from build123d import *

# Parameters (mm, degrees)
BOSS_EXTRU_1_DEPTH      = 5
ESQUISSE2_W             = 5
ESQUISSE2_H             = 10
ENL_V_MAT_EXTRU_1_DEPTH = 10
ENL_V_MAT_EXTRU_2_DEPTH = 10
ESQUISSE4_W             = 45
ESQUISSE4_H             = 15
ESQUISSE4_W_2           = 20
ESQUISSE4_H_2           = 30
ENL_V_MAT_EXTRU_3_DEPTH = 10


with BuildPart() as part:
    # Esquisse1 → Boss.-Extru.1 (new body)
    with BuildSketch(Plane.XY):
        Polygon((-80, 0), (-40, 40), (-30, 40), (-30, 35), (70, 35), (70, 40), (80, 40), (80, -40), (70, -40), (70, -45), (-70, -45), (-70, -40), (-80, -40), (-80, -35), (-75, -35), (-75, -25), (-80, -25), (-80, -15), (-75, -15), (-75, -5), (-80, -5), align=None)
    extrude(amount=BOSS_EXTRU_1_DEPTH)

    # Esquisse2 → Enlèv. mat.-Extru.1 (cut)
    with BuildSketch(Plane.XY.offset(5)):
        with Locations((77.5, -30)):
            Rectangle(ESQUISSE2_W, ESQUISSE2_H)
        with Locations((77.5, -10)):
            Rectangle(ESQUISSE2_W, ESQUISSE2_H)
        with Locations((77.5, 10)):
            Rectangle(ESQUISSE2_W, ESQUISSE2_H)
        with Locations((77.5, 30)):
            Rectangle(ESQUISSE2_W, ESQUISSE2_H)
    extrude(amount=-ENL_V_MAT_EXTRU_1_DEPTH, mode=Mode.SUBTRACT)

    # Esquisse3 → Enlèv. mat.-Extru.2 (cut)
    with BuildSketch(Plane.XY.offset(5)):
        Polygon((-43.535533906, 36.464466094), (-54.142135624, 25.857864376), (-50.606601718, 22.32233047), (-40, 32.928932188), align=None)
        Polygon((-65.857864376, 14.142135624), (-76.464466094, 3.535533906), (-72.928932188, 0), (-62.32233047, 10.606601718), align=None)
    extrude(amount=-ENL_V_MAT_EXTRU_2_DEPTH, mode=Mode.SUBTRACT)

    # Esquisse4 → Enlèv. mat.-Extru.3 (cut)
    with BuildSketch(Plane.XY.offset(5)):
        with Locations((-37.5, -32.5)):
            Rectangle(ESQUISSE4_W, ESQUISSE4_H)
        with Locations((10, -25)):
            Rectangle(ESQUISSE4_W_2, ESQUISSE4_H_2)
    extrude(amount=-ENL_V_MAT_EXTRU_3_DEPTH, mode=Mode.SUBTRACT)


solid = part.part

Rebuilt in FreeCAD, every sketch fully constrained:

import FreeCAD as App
import Part
import Sketcher
Q = App.Units.Quantity

doc = App.newDocument("Part")
body = doc.addObject("PartDesign::Body", "Body")

sketch1 = body.newObject("Sketcher::SketchObject", "Sketch")
sketch1.AttachmentSupport = (doc.getObject("XY_Plane"), [""])
sketch1.MapMode = "FlatFace"
sketch1.addGeometry(Part.LineSegment(App.Vector(-40, 40, 0), App.Vector(-80, 0, 0)), False)
sketch1.addGeometry(Part.LineSegment(App.Vector(-80, 0, 0), App.Vector(-80, -5, 0)), False)
sketch1.addGeometry(Part.LineSegment(App.Vector(-80, -5, 0), App.Vector(-75, -5, 0)), False)
sketch1.addGeometry(Part.LineSegment(App.Vector(-75, -5, 0), App.Vector(-75, -15, 0)), False)
sketch1.addGeometry(Part.LineSegment(App.Vector(-75, -15, 0), App.Vector(-80, -15, 0)), False)
sketch1.addGeometry(Part.LineSegment(App.Vector(-80, -15, 0), App.Vector(-80, -25, 0)), False)
sketch1.addGeometry(Part.LineSegment(App.Vector(-80, -25, 0), App.Vector(-75, -25, 0)), False)
sketch1.addGeometry(Part.LineSegment(App.Vector(-75, -25, 0), App.Vector(-75, -35, 0)), False)
sketch1.addGeometry(Part.LineSegment(App.Vector(-75, -35, 0), App.Vector(-80, -35, 0)), False)
sketch1.addGeometry(Part.LineSegment(App.Vector(-80, -35, 0), App.Vector(-80, -40, 0)), False)
sketch1.addGeometry(Part.LineSegment(App.Vector(-80, -40, 0), App.Vector(-70, -40, 0)), False)
sketch1.addGeometry(Part.LineSegment(App.Vector(-70, -40, 0), App.Vector(-70, -45, 0)), False)
sketch1.addGeometry(Part.LineSegment(App.Vector(-70, -45, 0), App.Vector(70, -45, 0)), False)
sketch1.addGeometry(Part.LineSegment(App.Vector(70, -45, 0), App.Vector(70, -40, 0)), False)
sketch1.addGeometry(Part.LineSegment(App.Vector(70, -40, 0), App.Vector(80, -40, 0)), False)
sketch1.addGeometry(Part.LineSegment(App.Vector(80, -40, 0), App.Vector(80, 40, 0)), False)
sketch1.addGeometry(Part.LineSegment(App.Vector(80, 40, 0), App.Vector(70, 40, 0)), False)
sketch1.addGeometry(Part.LineSegment(App.Vector(70, 40, 0), App.Vector(70, 35, 0)), False)
sketch1.addGeometry(Part.LineSegment(App.Vector(70, 35, 0), App.Vector(-30, 35, 0)), False)
sketch1.addGeometry(Part.LineSegment(App.Vector(-30, 35, 0), App.Vector(-30, 40, 0)), False)
sketch1.addGeometry(Part.LineSegment(App.Vector(-30, 40, 0), App.Vector(-40, 40, 0)), False)
sketch1.addConstraint(Sketcher.Constraint("Coincident", 0, 2, 1, 1))
sketch1.addConstraint(Sketcher.Constraint("Coincident", 1, 2, 2, 1))
sketch1.addConstraint(Sketcher.Constraint("Coincident", 2, 2, 3, 1))
sketch1.addConstraint(Sketcher.Constraint("Coincident", 3, 2, 4, 1))
sketch1.addConstraint(Sketcher.Constraint("Coincident", 4, 2, 5, 1))
sketch1.addConstraint(Sketcher.Constraint("Coincident", 5, 2, 6, 1))
sketch1.addConstraint(Sketcher.Constraint("Coincident", 6, 2, 7, 1))
sketch1.addConstraint(Sketcher.Constraint("Coincident", 7, 2, 8, 1))
sketch1.addConstraint(Sketcher.Constraint("Coincident", 8, 2, 9, 1))
sketch1.addConstraint(Sketcher.Constraint("Coincident", 9, 2, 10, 1))
sketch1.addConstraint(Sketcher.Constraint("Coincident", 10, 2, 11, 1))
sketch1.addConstraint(Sketcher.Constraint("Coincident", 11, 2, 12, 1))
sketch1.addConstraint(Sketcher.Constraint("Coincident", 12, 2, 13, 1))
sketch1.addConstraint(Sketcher.Constraint("Coincident", 13, 2, 14, 1))
sketch1.addConstraint(Sketcher.Constraint("Coincident", 14, 2, 15, 1))
sketch1.addConstraint(Sketcher.Constraint("Coincident", 15, 2, 16, 1))
sketch1.addConstraint(Sketcher.Constraint("Coincident", 16, 2, 17, 1))
sketch1.addConstraint(Sketcher.Constraint("Coincident", 17, 2, 18, 1))
sketch1.addConstraint(Sketcher.Constraint("Coincident", 18, 2, 19, 1))
sketch1.addConstraint(Sketcher.Constraint("Coincident", 19, 2, 20, 1))
sketch1.addConstraint(Sketcher.Constraint("Coincident", 20, 2, 0, 1))
sketch1.addConstraint(Sketcher.Constraint("Vertical", 1))
sketch1.addConstraint(Sketcher.Constraint("Horizontal", 2))
sketch1.addConstraint(Sketcher.Constraint("Vertical", 3))
sketch1.addConstraint(Sketcher.Constraint("Horizontal", 4))
sketch1.addConstraint(Sketcher.Constraint("Vertical", 5))
sketch1.addConstraint(Sketcher.Constraint("Horizontal", 6))
sketch1.addConstraint(Sketcher.Constraint("Vertical", 7))
sketch1.addConstraint(Sketcher.Constraint("Horizontal", 8))
sketch1.addConstraint(Sketcher.Constraint("Vertical", 9))
sketch1.addConstraint(Sketcher.Constraint("Horizontal", 10))
sketch1.addConstraint(Sketcher.Constraint("Vertical", 11))
sketch1.addConstraint(Sketcher.Constraint("Horizontal", 12))
sketch1.addConstraint(Sketcher.Constraint("Vertical", 13))
sketch1.addConstraint(Sketcher.Constraint("Horizontal", 14))
sketch1.addConstraint(Sketcher.Constraint("Vertical", 15))
sketch1.addConstraint(Sketcher.Constraint("Horizontal", 16))
sketch1.addConstraint(Sketcher.Constraint("Vertical", 17))
sketch1.addConstraint(Sketcher.Constraint("Horizontal", 18))
sketch1.addConstraint(Sketcher.Constraint("Vertical", 19))
sketch1.addConstraint(Sketcher.Constraint("Horizontal", 20))
sketch1.addConstraint(Sketcher.Constraint("Symmetric", 9, 2, 15, 2, -1, 1))
sketch1.addConstraint(Sketcher.Constraint("Symmetric", 10, 2, 13, 2, -2))
sketch1.addConstraint(Sketcher.Constraint("PointOnObject", 0, 2, -1))
sketch1.addConstraint(Sketcher.Constraint("Horizontal", 16, 2, 19, 2))
sketch1.addConstraint(Sketcher.Constraint("Vertical", 1, 2, 4, 2))
sketch1.addConstraint(Sketcher.Constraint("Vertical", 3, 2, 6, 2))
sketch1.addConstraint(Sketcher.Constraint("Vertical", 5, 2, 8, 2))
sketch1.addConstraint(Sketcher.Constraint("Vertical", 13, 2, 16, 2))
sketch1.addConstraint(Sketcher.Constraint("Equal", 16, 20))
sketch1.addConstraint(Sketcher.Constraint("Equal", 8, 1))
sketch1.addConstraint(Sketcher.Constraint("Equal", 20, 3))
sketch1.addConstraint(Sketcher.Constraint("Equal", 3, 5))
sketch1.addConstraint(Sketcher.Constraint("Equal", 5, 7))
sketch1.addConstraint(Sketcher.Constraint("Equal", 1, 9))
sketch1.addConstraint(Sketcher.Constraint("Equal", 9, 11))
sketch1.addConstraint(Sketcher.Constraint("Equal", 13, 17))
sketch1.addConstraint(Sketcher.Constraint("DistanceX", 2, 1, 2, 2, Q("5 mm")))
sketch1.addConstraint(Sketcher.Constraint("DistanceX", 10, 1, 10, 2, Q("10 mm")))
sketch1.addConstraint(Sketcher.Constraint("DistanceX", 12, 1, 12, 2, Q("140 mm")))
sketch1.addConstraint(Sketcher.Constraint("DistanceX", 18, 2, 18, 1, Q("100 mm")))
pad1 = body.newObject("PartDesign::Pad", "Pad")
pad1.Profile = sketch1
pad1.Length = 5

sketch2 = body.newObject("Sketcher::SketchObject", "Sketch001")
sketch2.AttachmentSupport = (doc.getObject("XY_Plane"), [""])
sketch2.MapMode = "FlatFace"
sketch2.AttachmentOffset = App.Placement(App.Vector(0, 0, 5), App.Rotation())
sketch2.addGeometry(Part.LineSegment(App.Vector(75, -25, 0), App.Vector(75, -35, 0)), False)
sketch2.addGeometry(Part.LineSegment(App.Vector(75, -35, 0), App.Vector(80, -35, 0)), False)
sketch2.addGeometry(Part.LineSegment(App.Vector(80, -35, 0), App.Vector(80, -25, 0)), False)
sketch2.addGeometry(Part.LineSegment(App.Vector(80, -25, 0), App.Vector(75, -25, 0)), False)
sketch2.addGeometry(Part.LineSegment(App.Vector(75, -5, 0), App.Vector(75, -15, 0)), False)
sketch2.addGeometry(Part.LineSegment(App.Vector(75, -15, 0), App.Vector(80, -15, 0)), False)
sketch2.addGeometry(Part.LineSegment(App.Vector(80, -15, 0), App.Vector(80, -5, 0)), False)
sketch2.addGeometry(Part.LineSegment(App.Vector(80, -5, 0), App.Vector(75, -5, 0)), False)
sketch2.addGeometry(Part.LineSegment(App.Vector(75, 15, 0), App.Vector(75, 5, 0)), False)
sketch2.addGeometry(Part.LineSegment(App.Vector(75, 5, 0), App.Vector(80, 5, 0)), False)
sketch2.addGeometry(Part.LineSegment(App.Vector(80, 5, 0), App.Vector(80, 15, 0)), False)
sketch2.addGeometry(Part.LineSegment(App.Vector(80, 15, 0), App.Vector(75, 15, 0)), False)
sketch2.addGeometry(Part.LineSegment(App.Vector(75, 35, 0), App.Vector(75, 25, 0)), False)
sketch2.addGeometry(Part.LineSegment(App.Vector(75, 25, 0), App.Vector(80, 25, 0)), False)
sketch2.addGeometry(Part.LineSegment(App.Vector(80, 25, 0), App.Vector(80, 35, 0)), False)
sketch2.addGeometry(Part.LineSegment(App.Vector(80, 35, 0), App.Vector(75, 35, 0)), False)
sketch2.addConstraint(Sketcher.Constraint("Coincident", 0, 2, 1, 1))
sketch2.addConstraint(Sketcher.Constraint("Coincident", 1, 2, 2, 1))
sketch2.addConstraint(Sketcher.Constraint("Coincident", 2, 2, 3, 1))
sketch2.addConstraint(Sketcher.Constraint("Coincident", 3, 2, 0, 1))
sketch2.addConstraint(Sketcher.Constraint("Coincident", 4, 2, 5, 1))
sketch2.addConstraint(Sketcher.Constraint("Coincident", 5, 2, 6, 1))
sketch2.addConstraint(Sketcher.Constraint("Coincident", 6, 2, 7, 1))
sketch2.addConstraint(Sketcher.Constraint("Coincident", 7, 2, 4, 1))
sketch2.addConstraint(Sketcher.Constraint("Coincident", 8, 2, 9, 1))
sketch2.addConstraint(Sketcher.Constraint("Coincident", 9, 2, 10, 1))
sketch2.addConstraint(Sketcher.Constraint("Coincident", 10, 2, 11, 1))
sketch2.addConstraint(Sketcher.Constraint("Coincident", 11, 2, 8, 1))
sketch2.addConstraint(Sketcher.Constraint("Coincident", 12, 2, 13, 1))
sketch2.addConstraint(Sketcher.Constraint("Coincident", 13, 2, 14, 1))
sketch2.addConstraint(Sketcher.Constraint("Coincident", 14, 2, 15, 1))
sketch2.addConstraint(Sketcher.Constraint("Coincident", 15, 2, 12, 1))
sketch2.addConstraint(Sketcher.Constraint("Vertical", 0))
sketch2.addConstraint(Sketcher.Constraint("Horizontal", 1))
sketch2.addConstraint(Sketcher.Constraint("Vertical", 2))
sketch2.addConstraint(Sketcher.Constraint("Horizontal", 3))
sketch2.addConstraint(Sketcher.Constraint("Vertical", 4))
sketch2.addConstraint(Sketcher.Constraint("Horizontal", 5))
sketch2.addConstraint(Sketcher.Constraint("Vertical", 6))
sketch2.addConstraint(Sketcher.Constraint("Horizontal", 7))
sketch2.addConstraint(Sketcher.Constraint("Vertical", 8))
sketch2.addConstraint(Sketcher.Constraint("Horizontal", 9))
sketch2.addConstraint(Sketcher.Constraint("Vertical", 10))
sketch2.addConstraint(Sketcher.Constraint("Horizontal", 11))
sketch2.addConstraint(Sketcher.Constraint("Vertical", 12))
sketch2.addConstraint(Sketcher.Constraint("Horizontal", 13))
sketch2.addConstraint(Sketcher.Constraint("Vertical", 14))
sketch2.addConstraint(Sketcher.Constraint("Horizontal", 15))
sketch2.addConstraint(Sketcher.Constraint("Symmetric", 7, 2, 8, 2, -1))
sketch2.addConstraint(Sketcher.Constraint("Symmetric", 5, 2, 10, 2, -1))
sketch2.addConstraint(Sketcher.Constraint("Symmetric", 3, 2, 12, 2, -1))
sketch2.addConstraint(Sketcher.Constraint("Symmetric", 1, 2, 14, 2, -1))
sketch2.addConstraint(Sketcher.Constraint("Vertical", 3, 2, 4, 2))
sketch2.addConstraint(Sketcher.Constraint("Vertical", 2, 2, 5, 2))
sketch2.addConstraint(Sketcher.Constraint("Equal", 2, 4))
sketch2.addConstraint(Sketcher.Constraint("DistanceX", 1, 1, 1, 2, Q("5 mm")))
sketch2.addConstraint(Sketcher.Constraint("DistanceY", 0, 2, 0, 1, Q("10 mm")))
sketch2.addConstraint(Sketcher.Constraint("DistanceX", -1, 1, 0, 2, Q("75 mm")))
sketch2.addConstraint(Sketcher.Constraint("DistanceY", 0, 2, -1, 1, Q("35 mm")))
sketch2.addConstraint(Sketcher.Constraint("DistanceY", 4, 2, -1, 1, Q("15 mm")))
pocket1 = body.newObject("PartDesign::Pocket", "Pocket")
pocket1.Profile = sketch2
pocket1.Length = 10

sketch3 = body.newObject("Sketcher::SketchObject", "Sketch002")
sketch3.AttachmentSupport = (doc.getObject("XY_Plane"), [""])
sketch3.MapMode = "FlatFace"
sketch3.AttachmentOffset = App.Placement(App.Vector(0, 0, 5), App.Rotation())
sketch3.addGeometry(Part.LineSegment(App.Vector(-44, 36, 0), App.Vector(-54, 26, 0)), False)
sketch3.addGeometry(Part.LineSegment(App.Vector(-54, 26, 0), App.Vector(-51, 22, 0)), False)
sketch3.addGeometry(Part.LineSegment(App.Vector(-51, 22, 0), App.Vector(-40, 33, 0)), False)
sketch3.addGeometry(Part.LineSegment(App.Vector(-40, 33, 0), App.Vector(-44, 36, 0)), False)
sketch3.addGeometry(Part.LineSegment(App.Vector(-66, 14, 0), App.Vector(-76, 4, 0)), False)
sketch3.addGeometry(Part.LineSegment(App.Vector(-76, 4, 0), App.Vector(-73, 0, 0)), False)
sketch3.addGeometry(Part.LineSegment(App.Vector(-73, 0, 0), App.Vector(-62, 11, 0)), False)
sketch3.addGeometry(Part.LineSegment(App.Vector(-62, 11, 0), App.Vector(-66, 14, 0)), False)
sketch3.addConstraint(Sketcher.Constraint("Coincident", 0, 2, 1, 1))
sketch3.addConstraint(Sketcher.Constraint("Coincident", 1, 2, 2, 1))
sketch3.addConstraint(Sketcher.Constraint("Coincident", 2, 2, 3, 1))
sketch3.addConstraint(Sketcher.Constraint("Coincident", 3, 2, 0, 1))
sketch3.addConstraint(Sketcher.Constraint("Coincident", 4, 2, 5, 1))
sketch3.addConstraint(Sketcher.Constraint("Coincident", 5, 2, 6, 1))
sketch3.addConstraint(Sketcher.Constraint("Coincident", 6, 2, 7, 1))
sketch3.addConstraint(Sketcher.Constraint("Coincident", 7, 2, 4, 1))
sketch3.addConstraint(Sketcher.Constraint("PointOnObject", 5, 2, -1))
sketch3.addConstraint(Sketcher.Constraint("Perpendicular", 0, 1))
sketch3.addConstraint(Sketcher.Constraint("Perpendicular", 1, 2))
sketch3.addConstraint(Sketcher.Constraint("Perpendicular", 2, 3))
sketch3.addConstraint(Sketcher.Constraint("Perpendicular", 3, 4))
sketch3.addConstraint(Sketcher.Constraint("Perpendicular", 4, 5))
sketch3.addConstraint(Sketcher.Constraint("Perpendicular", 5, 6))
sketch3.addConstraint(Sketcher.Constraint("Perpendicular", 6, 7))
sketch3.addConstraint(Sketcher.Constraint("Equal", 2, 4))
sketch3.addConstraint(Sketcher.Constraint("Equal", 3, 5))
sketch3.addConstraint(Sketcher.Constraint("Angle", 0, Q("-135 deg")))
sketch3.addConstraint(Sketcher.Constraint("Distance", 0, Q("15 mm")))
sketch3.addConstraint(Sketcher.Constraint("Distance", 1, Q("5 mm")))
sketch3.addConstraint(Sketcher.Constraint("DistanceX", 2, 2, -1, 1, Q("40 mm")))
sketch3.addConstraint(Sketcher.Constraint("DistanceY", 4, 2, 2, 2, Q("29.393398 mm")))
sketch3.addConstraint(Sketcher.Constraint("DistanceX", 5, 2, 3, 2, Q("29.393398 mm")))
pocket2 = body.newObject("PartDesign::Pocket", "Pocket001")
pocket2.Profile = sketch3
pocket2.Length = 10

sketch4 = body.newObject("Sketcher::SketchObject", "Sketch003")
sketch4.AttachmentSupport = (doc.getObject("XY_Plane"), [""])
sketch4.MapMode = "FlatFace"
sketch4.AttachmentOffset = App.Placement(App.Vector(0, 0, 5), App.Rotation())
sketch4.addGeometry(Part.LineSegment(App.Vector(-60, -25, 0), App.Vector(-60, -40, 0)), False)
sketch4.addGeometry(Part.LineSegment(App.Vector(-60, -40, 0), App.Vector(-15, -40, 0)), False)
sketch4.addGeometry(Part.LineSegment(App.Vector(-15, -40, 0), App.Vector(-15, -25, 0)), False)
sketch4.addGeometry(Part.LineSegment(App.Vector(-15, -25, 0), App.Vector(-60, -25, 0)), False)
sketch4.addGeometry(Part.LineSegment(App.Vector(0, -10, 0), App.Vector(0, -40, 0)), False)
sketch4.addGeometry(Part.LineSegment(App.Vector(0, -40, 0), App.Vector(20, -40, 0)), False)
sketch4.addGeometry(Part.LineSegment(App.Vector(20, -40, 0), App.Vector(20, -10, 0)), False)
sketch4.addGeometry(Part.LineSegment(App.Vector(20, -10, 0), App.Vector(0, -10, 0)), False)
sketch4.addConstraint(Sketcher.Constraint("Coincident", 0, 2, 1, 1))
sketch4.addConstraint(Sketcher.Constraint("Coincident", 1, 2, 2, 1))
sketch4.addConstraint(Sketcher.Constraint("Coincident", 2, 2, 3, 1))
sketch4.addConstraint(Sketcher.Constraint("Coincident", 3, 2, 0, 1))
sketch4.addConstraint(Sketcher.Constraint("Coincident", 4, 2, 5, 1))
sketch4.addConstraint(Sketcher.Constraint("Coincident", 5, 2, 6, 1))
sketch4.addConstraint(Sketcher.Constraint("Coincident", 6, 2, 7, 1))
sketch4.addConstraint(Sketcher.Constraint("Coincident", 7, 2, 4, 1))
sketch4.addConstraint(Sketcher.Constraint("Vertical", 0))
sketch4.addConstraint(Sketcher.Constraint("Horizontal", 1))
sketch4.addConstraint(Sketcher.Constraint("Vertical", 2))
sketch4.addConstraint(Sketcher.Constraint("Horizontal", 3))
sketch4.addConstraint(Sketcher.Constraint("Vertical", 4))
sketch4.addConstraint(Sketcher.Constraint("Horizontal", 5))
sketch4.addConstraint(Sketcher.Constraint("Vertical", 6))
sketch4.addConstraint(Sketcher.Constraint("Horizontal", 7))
sketch4.addConstraint(Sketcher.Constraint("PointOnObject", 4, 2, -2))
sketch4.addConstraint(Sketcher.Constraint("Horizontal", 1, 2, 4, 2))
sketch4.addConstraint(Sketcher.Constraint("DistanceX", 1, 1, 1, 2, Q("45 mm")))
sketch4.addConstraint(Sketcher.Constraint("DistanceX", 5, 1, 5, 2, Q("20 mm")))
sketch4.addConstraint(Sketcher.Constraint("DistanceY", 0, 2, 0, 1, Q("15 mm")))
sketch4.addConstraint(Sketcher.Constraint("DistanceY", 4, 2, 4, 1, Q("30 mm")))
sketch4.addConstraint(Sketcher.Constraint("DistanceX", 0, 2, -1, 1, Q("60 mm")))
sketch4.addConstraint(Sketcher.Constraint("DistanceY", 0, 2, -1, 1, Q("40 mm")))
pocket3 = body.newObject("PartDesign::Pocket", "Pocket002")
pocket3.Profile = sketch4
pocket3.Length = 10

doc.recompute()
